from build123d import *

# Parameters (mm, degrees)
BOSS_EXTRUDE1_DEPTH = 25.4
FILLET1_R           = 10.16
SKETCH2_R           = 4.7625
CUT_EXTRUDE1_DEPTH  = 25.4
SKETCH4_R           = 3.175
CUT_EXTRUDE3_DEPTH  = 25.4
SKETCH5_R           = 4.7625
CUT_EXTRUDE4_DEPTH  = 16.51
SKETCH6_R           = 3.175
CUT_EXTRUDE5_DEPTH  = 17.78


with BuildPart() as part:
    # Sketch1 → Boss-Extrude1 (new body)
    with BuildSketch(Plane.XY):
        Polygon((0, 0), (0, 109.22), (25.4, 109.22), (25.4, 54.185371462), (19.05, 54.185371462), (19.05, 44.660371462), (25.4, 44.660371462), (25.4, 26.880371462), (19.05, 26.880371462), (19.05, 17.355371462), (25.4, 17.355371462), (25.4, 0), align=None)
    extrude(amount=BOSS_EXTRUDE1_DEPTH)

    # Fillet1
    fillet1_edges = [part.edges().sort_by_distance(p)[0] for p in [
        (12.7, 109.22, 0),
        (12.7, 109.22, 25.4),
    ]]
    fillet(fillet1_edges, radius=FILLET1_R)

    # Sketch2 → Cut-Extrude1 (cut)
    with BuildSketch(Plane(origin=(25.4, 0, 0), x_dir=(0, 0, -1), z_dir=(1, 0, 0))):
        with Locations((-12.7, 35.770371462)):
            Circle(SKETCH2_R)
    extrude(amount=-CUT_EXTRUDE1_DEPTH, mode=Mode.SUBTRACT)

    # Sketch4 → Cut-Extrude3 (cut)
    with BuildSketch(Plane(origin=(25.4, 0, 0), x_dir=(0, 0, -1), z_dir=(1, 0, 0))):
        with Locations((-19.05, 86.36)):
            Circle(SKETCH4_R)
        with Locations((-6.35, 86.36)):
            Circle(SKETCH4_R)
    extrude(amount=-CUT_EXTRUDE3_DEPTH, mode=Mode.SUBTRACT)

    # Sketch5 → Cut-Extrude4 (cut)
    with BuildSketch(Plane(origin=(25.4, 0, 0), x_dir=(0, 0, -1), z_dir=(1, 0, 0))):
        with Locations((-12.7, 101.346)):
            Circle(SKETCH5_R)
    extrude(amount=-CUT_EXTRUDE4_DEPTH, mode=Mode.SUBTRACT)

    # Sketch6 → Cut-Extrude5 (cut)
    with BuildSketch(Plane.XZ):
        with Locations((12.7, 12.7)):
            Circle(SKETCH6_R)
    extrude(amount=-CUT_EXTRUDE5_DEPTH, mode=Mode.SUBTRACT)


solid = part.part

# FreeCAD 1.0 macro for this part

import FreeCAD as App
import Part
import Sketcher

V = App.Vector
Q = App.Units.Quantity


def edges_at(feature, points):
    """Names of the edges that pass closest to the given points."""
    edges = feature.Shape.Edges
    near = lambda p: min(range(len(edges)), key=lambda i: edges[i].distToShape(Part.Vertex(*p))[0])
    return sorted({f"Edge{near(p) + 1}" for p in points})

doc = App.newDocument("Part")
body = doc.addObject("PartDesign::Body", "Body")

sketch1 = body.newObject("Sketcher::SketchObject", "Sketch")
sketch1.AttachmentSupport = (doc.getObject("XY_Plane"), [""])
sketch1.MapMode = "FlatFace"
sketch1.addGeometry(Part.LineSegment(V(0, 109, 0), V(0, 0, 0)), False)
sketch1.addGeometry(Part.LineSegment(V(0, 0, 0), V(25, 0, 0)), False)
sketch1.addGeometry(Part.LineSegment(V(25, 0, 0), V(25, 17, 0)), False)
sketch1.addGeometry(Part.LineSegment(V(25, 17, 0), V(19, 17, 0)), False)
sketch1.addGeometry(Part.LineSegment(V(19, 17, 0), V(19, 27, 0)), False)
sketch1.addGeometry(Part.LineSegment(V(19, 27, 0), V(25, 27, 0)), False)
sketch1.addGeometry(Part.LineSegment(V(25, 27, 0), V(25, 45, 0)), False)
sketch1.addGeometry(Part.LineSegment(V(25, 45, 0), V(19, 45, 0)), False)
sketch1.addGeometry(Part.LineSegment(V(19, 45, 0), V(19, 54, 0)), False)
sketch1.addGeometry(Part.LineSegment(V(19, 54, 0), V(25, 54, 0)), False)
sketch1.addGeometry(Part.LineSegment(V(25, 54, 0), V(25, 109, 0)), False)
sketch1.addGeometry(Part.LineSegment(V(25, 109, 0), V(0, 109, 0)), False)
sketch1.addConstraint(Sketcher.Constraint("Coincident", 0, 2, 1, 1))
sketch1.addConstraint(Sketcher.Constraint("Coincident", 1, 2, 2, 1))
sketch1.addConstraint(Sketcher.Constraint("Coincident", 2, 2, 3, 1))
sketch1.addConstraint(Sketcher.Constraint("Coincident", 3, 2, 4, 1))
sketch1.addConstraint(Sketcher.Constraint("Coincident", 4, 2, 5, 1))
sketch1.addConstraint(Sketcher.Constraint("Coincident", 5, 2, 6, 1))
sketch1.addConstraint(Sketcher.Constraint("Coincident", 6, 2, 7, 1))
sketch1.addConstraint(Sketcher.Constraint("Coincident", 7, 2, 8, 1))
sketch1.addConstraint(Sketcher.Constraint("Coincident", 8, 2, 9, 1))
sketch1.addConstraint(Sketcher.Constraint("Coincident", 9, 2, 10, 1))
sketch1.addConstraint(Sketcher.Constraint("Coincident", 10, 2, 11, 1))
sketch1.addConstraint(Sketcher.Constraint("Coincident", 11, 2, 0, 1))
sketch1.addConstraint(Sketcher.Constraint("Vertical", 0))
sketch1.addConstraint(Sketcher.Constraint("Horizontal", 1))
sketch1.addConstraint(Sketcher.Constraint("Vertical", 2))
sketch1.addConstraint(Sketcher.Constraint("Horizontal", 3))
sketch1.addConstraint(Sketcher.Constraint("Vertical", 4))
sketch1.addConstraint(Sketcher.Constraint("Horizontal", 5))
sketch1.addConstraint(Sketcher.Constraint("Vertical", 6))
sketch1.addConstraint(Sketcher.Constraint("Horizontal", 7))
sketch1.addConstraint(Sketcher.Constraint("Vertical", 8))
sketch1.addConstraint(Sketcher.Constraint("Horizontal", 9))
sketch1.addConstraint(Sketcher.Constraint("Vertical", 10))
sketch1.addConstraint(Sketcher.Constraint("Horizontal", 11))
sketch1.addConstraint(Sketcher.Constraint("Coincident", 0, 2, -1, 1))
sketch1.addConstraint(Sketcher.Constraint("Vertical", 2, 2, 5, 2))
sketch1.addConstraint(Sketcher.Constraint("Vertical", 4, 2, 7, 2))
sketch1.addConstraint(Sketcher.Constraint("Vertical", 6, 2, 9, 2))
sketch1.addConstraint(Sketcher.Constraint("Equal", 4, 8))
sketch1.addConstraint(Sketcher.Constraint("DistanceX", 1, 1, 1, 2, Q("1 in")))
sketch1.addConstraint(Sketcher.Constraint("DistanceY", 0, 2, 0, 1, Q("4.3 in")))
sketch1.addConstraint(Sketcher.Constraint("DistanceY", 6, 1, 6, 2, Q("0.7 in")))
sketch1.addConstraint(Sketcher.Constraint("DistanceX", 3, 2, 3, 1, Q("0.25 in")))
sketch1.addConstraint(Sketcher.Constraint("DistanceY", 4, 1, 4, 2, Q("0.375 in")))
sketch1.addConstraint(Sketcher.Constraint("DistanceY", 2, 1, 2, 2, Q("17.355371 mm")))
pad1 = body.newObject("PartDesign::Pad", "Pad")
pad1.Profile = sketch1
pad1.Length = Q("1 in")
doc.recompute()

fillet = body.newObject("PartDesign::Fillet", "Fillet")
fillet.Base = (pad1, edges_at(pad1, [(12.7, 109.22, 0), (12.7, 109.22, 25.4)]))
fillet.Radius = Q("0.4 in")

sketch2 = body.newObject("Sketcher::SketchObject", "Sketch001")
sketch2.AttachmentSupport = (doc.getObject("YZ_Plane"), [""])
sketch2.MapMode = "FlatFace"
sketch2.AttachmentOffset = App.Placement(V(0, 0, 1 * 25.4), App.Rotation())
sketch2.addGeometry(Part.Circle(V(35.8, 12.7, 0), V(0, 0, 1), 4.8), False)
sketch2.addConstraint(Sketcher.Constraint("Diameter", 0, Q("0.375 in")))
sketch2.addConstraint(Sketcher.Constraint("DistanceY", -1, 1, 0, 3, Q("0.5 in")))
sketch2.addConstraint(Sketcher.Constraint("DistanceX", -1, 1, 0, 3, Q("35.770371 mm")))
pocket1 = body.newObject("PartDesign::Pocket", "Pocket")
pocket1.Profile = sketch2
pocket1.Length = Q("1 in")

sketch3 = body.newObject("Sketcher::SketchObject", "Sketch002")
sketch3.AttachmentSupport = (doc.getObject("YZ_Plane"), [""])
sketch3.MapMode = "FlatFace"
sketch3.AttachmentOffset = App.Placement(V(0, 0, 1 * 25.4), App.Rotation())
sketch3.addGeometry(Part.Circle(V(86.4, 19.1, 0), V(0, 0, 1), 3.2), False)
sketch3.addGeometry(Part.Circle(V(86.4, 6.3, 0), V(0, 0, 1), 3.2), False)
sketch3.addConstraint(Sketcher.Constraint("Equal", 0, 1))
sketch3.addConstraint(Sketcher.Constraint("Vertical", 0, 3, 1, 3))
sketch3.addConstraint(Sketcher.Constraint("Diameter", 0, Q("0.25 in")))
sketch3.addConstraint(Sketcher.Constraint("DistanceX", -1, 1, 0, 3, Q("3.4 in")))
sketch3.addConstraint(Sketcher.Constraint("DistanceY", 1, 3, 0, 3, Q("0.5 in")))
sketch3.addConstraint(Sketcher.Constraint("DistanceY", -1, 1, 0, 3, Q("0.75 in")))
pocket2 = body.newObject("PartDesign::Pocket", "Pocket001")
pocket2.Profile = sketch3
pocket2.Length = Q("1 in")

sketch4 = body.newObject("Sketcher::SketchObject", "Sketch003")
sketch4.AttachmentSupport = (doc.getObject("YZ_Plane"), [""])
sketch4.MapMode = "FlatFace"
sketch4.AttachmentOffset = App.Placement(V(0, 0, 1 * 25.4), App.Rotation())
sketch4.addGeometry(Part.Circle(V(101.3, 12.7, 0), V(0, 0, 1), 4.8), False)
sketch4.addConstraint(Sketcher.Constraint("Diameter", 0, Q("0.375 in")))
sketch4.addConstraint(Sketcher.Constraint("DistanceY", -1, 1, 0, 3, Q("0.5 in")))
sketch4.addConstraint(Sketcher.Constraint("DistanceX", -1, 1, 0, 3, Q("3.99 in")))
pocket3 = body.newObject("PartDesign::Pocket", "Pocket002")
pocket3.Profile = sketch4
pocket3.Length = Q("0.65 in")

sketch5 = body.newObject("Sketcher::SketchObject", "Sketch004")
sketch5.AttachmentSupport = (doc.getObject("XZ_Plane"), [""])
sketch5.MapMode = "FlatFace"
sketch5.addGeometry(Part.Circle(V(12.7, 12.7, 0), V(0, 0, 1), 3.2), False)
sketch5.addConstraint(Sketcher.Constraint("Diameter", 0, Q("0.25 in")))
sketch5.addConstraint(Sketcher.Constraint("DistanceX", -1, 1, 0, 3, Q("0.5 in")))
sketch5.addConstraint(Sketcher.Constraint("DistanceY", -1, 1, 0, 3, Q("0.5 in")))
pocket4 = body.newObject("PartDesign::Pocket", "Pocket003")
pocket4.Profile = sketch5
pocket4.Length = Q("0.7 in")

doc.recompute()
